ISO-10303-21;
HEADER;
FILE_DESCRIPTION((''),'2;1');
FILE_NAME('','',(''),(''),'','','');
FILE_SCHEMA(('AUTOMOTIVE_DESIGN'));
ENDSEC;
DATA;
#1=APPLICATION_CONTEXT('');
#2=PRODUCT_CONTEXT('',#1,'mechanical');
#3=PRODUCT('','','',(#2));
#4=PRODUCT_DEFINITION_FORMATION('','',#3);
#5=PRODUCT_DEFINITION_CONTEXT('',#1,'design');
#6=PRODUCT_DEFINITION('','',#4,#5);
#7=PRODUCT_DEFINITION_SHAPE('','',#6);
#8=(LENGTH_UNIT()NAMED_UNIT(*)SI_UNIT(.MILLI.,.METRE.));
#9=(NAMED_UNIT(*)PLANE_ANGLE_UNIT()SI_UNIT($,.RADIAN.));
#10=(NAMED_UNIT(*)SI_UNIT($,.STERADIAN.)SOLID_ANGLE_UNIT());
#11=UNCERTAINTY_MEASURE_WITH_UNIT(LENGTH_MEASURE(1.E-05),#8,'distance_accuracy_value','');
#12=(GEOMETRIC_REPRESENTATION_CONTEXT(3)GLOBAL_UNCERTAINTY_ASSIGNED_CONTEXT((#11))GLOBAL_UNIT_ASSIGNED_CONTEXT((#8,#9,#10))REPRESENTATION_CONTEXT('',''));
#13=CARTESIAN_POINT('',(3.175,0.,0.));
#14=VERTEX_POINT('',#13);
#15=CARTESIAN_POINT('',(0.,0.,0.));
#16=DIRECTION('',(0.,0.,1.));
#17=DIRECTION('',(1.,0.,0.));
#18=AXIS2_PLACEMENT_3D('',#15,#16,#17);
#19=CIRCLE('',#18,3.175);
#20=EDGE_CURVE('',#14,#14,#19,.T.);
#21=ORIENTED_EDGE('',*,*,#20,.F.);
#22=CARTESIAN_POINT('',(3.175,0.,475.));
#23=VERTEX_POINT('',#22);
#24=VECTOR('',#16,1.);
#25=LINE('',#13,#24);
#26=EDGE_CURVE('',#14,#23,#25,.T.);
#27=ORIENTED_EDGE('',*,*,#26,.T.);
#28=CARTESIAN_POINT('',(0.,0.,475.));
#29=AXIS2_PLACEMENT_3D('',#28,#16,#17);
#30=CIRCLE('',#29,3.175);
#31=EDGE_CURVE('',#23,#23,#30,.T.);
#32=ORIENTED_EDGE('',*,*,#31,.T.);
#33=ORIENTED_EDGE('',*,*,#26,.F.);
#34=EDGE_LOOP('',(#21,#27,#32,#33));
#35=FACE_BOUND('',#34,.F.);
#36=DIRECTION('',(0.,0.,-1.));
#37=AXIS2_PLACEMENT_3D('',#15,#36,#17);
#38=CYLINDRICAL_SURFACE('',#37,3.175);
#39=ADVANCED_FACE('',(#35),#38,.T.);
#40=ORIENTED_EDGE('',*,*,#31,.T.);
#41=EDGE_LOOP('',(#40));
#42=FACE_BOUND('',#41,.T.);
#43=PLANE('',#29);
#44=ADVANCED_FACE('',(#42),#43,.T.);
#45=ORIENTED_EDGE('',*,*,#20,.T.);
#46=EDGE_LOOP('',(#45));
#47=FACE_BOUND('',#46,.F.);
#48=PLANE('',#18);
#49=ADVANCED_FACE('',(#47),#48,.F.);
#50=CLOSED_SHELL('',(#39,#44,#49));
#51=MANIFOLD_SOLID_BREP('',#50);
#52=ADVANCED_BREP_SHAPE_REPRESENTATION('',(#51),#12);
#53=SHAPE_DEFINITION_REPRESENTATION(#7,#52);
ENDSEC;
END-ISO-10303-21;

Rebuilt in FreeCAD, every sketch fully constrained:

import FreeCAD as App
import Part
import Sketcher

V = App.Vector

doc = App.newDocument("Part")
body = doc.addObject("PartDesign::Body", "Body")

# Sketch on XY plane
sketch1 = body.newObject("Sketcher::SketchObject", "Sketch")
sketch1.AttachmentSupport = (doc.getObject("XY_Plane"), [""])
sketch1.MapMode = "FlatFace"
sketch1.addGeometry(Part.Circle(V(0, 0, 0), V(0, 0, 1), 3.175), False)
sketch1.addConstraint([
    Sketcher.Constraint("Coincident", 0, 3, -1, 1),
    Sketcher.Constraint("Diameter", 0, 6.35),
])
pad1 = body.newObject("PartDesign::Pad", "Pad")
pad1.Profile = sketch1
pad1.Length = 475

doc.recompute()
